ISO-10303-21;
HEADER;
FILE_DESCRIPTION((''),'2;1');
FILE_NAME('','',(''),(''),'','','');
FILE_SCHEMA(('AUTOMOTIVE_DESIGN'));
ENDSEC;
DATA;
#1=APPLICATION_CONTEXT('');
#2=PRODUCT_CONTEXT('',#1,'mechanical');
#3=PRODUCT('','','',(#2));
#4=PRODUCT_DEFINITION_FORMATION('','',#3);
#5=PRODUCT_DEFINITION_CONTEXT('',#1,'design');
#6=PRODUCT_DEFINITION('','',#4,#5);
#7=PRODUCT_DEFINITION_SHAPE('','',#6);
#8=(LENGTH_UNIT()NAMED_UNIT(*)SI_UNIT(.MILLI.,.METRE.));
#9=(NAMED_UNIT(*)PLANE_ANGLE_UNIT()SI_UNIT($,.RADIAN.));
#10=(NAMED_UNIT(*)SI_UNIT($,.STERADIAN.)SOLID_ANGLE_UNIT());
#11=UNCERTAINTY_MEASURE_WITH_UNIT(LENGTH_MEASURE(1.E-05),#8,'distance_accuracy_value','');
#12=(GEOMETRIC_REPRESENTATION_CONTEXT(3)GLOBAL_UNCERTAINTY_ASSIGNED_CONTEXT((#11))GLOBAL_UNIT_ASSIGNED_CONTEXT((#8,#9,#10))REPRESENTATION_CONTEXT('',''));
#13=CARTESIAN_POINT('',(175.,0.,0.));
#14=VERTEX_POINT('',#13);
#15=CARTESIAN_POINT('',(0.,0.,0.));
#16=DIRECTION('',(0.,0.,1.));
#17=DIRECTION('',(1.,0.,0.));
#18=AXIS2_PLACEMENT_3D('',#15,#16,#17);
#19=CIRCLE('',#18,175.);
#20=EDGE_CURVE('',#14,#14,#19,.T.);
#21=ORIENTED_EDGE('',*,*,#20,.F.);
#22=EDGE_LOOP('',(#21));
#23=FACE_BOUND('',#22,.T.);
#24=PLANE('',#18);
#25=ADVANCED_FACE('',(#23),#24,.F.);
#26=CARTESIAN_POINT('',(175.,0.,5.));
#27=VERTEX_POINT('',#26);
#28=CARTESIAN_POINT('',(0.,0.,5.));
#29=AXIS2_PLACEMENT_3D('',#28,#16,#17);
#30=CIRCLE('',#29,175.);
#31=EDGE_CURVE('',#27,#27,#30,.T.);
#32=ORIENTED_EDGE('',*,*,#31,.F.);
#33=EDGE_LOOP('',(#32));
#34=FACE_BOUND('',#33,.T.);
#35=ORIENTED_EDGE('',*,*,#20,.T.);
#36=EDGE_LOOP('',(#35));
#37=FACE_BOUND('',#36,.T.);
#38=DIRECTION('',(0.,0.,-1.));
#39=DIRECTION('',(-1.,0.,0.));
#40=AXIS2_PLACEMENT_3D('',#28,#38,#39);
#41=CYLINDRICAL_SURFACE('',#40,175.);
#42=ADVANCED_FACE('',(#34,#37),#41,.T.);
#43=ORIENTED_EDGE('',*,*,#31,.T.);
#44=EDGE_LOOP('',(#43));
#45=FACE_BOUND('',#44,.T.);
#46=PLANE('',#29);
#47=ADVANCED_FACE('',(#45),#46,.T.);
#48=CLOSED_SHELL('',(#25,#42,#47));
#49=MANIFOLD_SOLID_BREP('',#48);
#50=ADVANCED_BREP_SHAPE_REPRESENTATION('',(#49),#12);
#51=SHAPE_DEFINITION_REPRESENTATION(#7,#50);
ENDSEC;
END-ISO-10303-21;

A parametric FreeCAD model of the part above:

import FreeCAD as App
import Part
import Sketcher

V = App.Vector

doc = App.newDocument("Part")
body = doc.addObject("PartDesign::Body", "Body")

# Sketch on XY plane
sketch1 = body.newObject("Sketcher::SketchObject", "Sketch")
sketch1.AttachmentSupport = (doc.getObject("XY_Plane"), [""])
sketch1.MapMode = "FlatFace"
sketch1.addGeometry(Part.Circle(V(0, 0, 0), V(0, 0, 1), 175), False)
sketch1.addConstraint([
    Sketcher.Constraint("Coincident", 0, 3, -1, 1),
    Sketcher.Constraint("Diameter", 0, 350.0),
])
pad1 = body.newObject("PartDesign::Pad", "Pad")
pad1.Profile = sketch1
pad1.Length = 5

doc.recompute()
